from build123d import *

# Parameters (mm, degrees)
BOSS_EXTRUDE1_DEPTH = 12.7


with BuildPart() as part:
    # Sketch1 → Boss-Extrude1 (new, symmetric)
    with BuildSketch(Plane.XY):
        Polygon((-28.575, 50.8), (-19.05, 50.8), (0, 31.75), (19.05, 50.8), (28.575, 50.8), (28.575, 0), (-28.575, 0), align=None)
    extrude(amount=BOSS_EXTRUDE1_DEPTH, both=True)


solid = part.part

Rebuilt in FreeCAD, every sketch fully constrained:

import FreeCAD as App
import Part
import Sketcher
from FreeCAD import Vector
Q = App.Units.Quantity

doc = App.newDocument("Part")
body = doc.addObject("PartDesign::Body", "Body")

# Sketch on XY plane
sketch1 = body.newObject("Sketcher::SketchObject", "Sketch")
sketch1.AttachmentSupport = (doc.getObject("XY_Plane"), [""])
sketch1.MapMode = "FlatFace"
sketch1.addGeometry([
    Part.LineSegment(Vector(-19, 51, 0), Vector(-29, 51, 0)),  # 0
    Part.LineSegment(Vector(-29, 51, 0), Vector(-29, 0, 0)),  # 1
    Part.LineSegment(Vector(-29, 0, 0), Vector(29, 0, 0)),  # 2
    Part.LineSegment(Vector(29, 0, 0), Vector(29, 51, 0)),  # 3
    Part.LineSegment(Vector(29, 51, 0), Vector(19, 51, 0)),  # 4
    Part.LineSegment(Vector(19, 51, 0), Vector(0, 32, 0)),  # 5
    Part.LineSegment(Vector(0, 32, 0), Vector(-19, 51, 0)),  # 6
], False)
sketch1.addConstraint([
    Sketcher.Constraint("Coincident", 0, 2, 1, 1),
    Sketcher.Constraint("Coincident", 1, 2, 2, 1),
    Sketcher.Constraint("Coincident", 2, 2, 3, 1),
    Sketcher.Constraint("Coincident", 3, 2, 4, 1),
    Sketcher.Constraint("Coincident", 4, 2, 5, 1),
    Sketcher.Constraint("Coincident", 5, 2, 6, 1),
    Sketcher.Constraint("Coincident", 6, 2, 0, 1),
    Sketcher.Constraint("Horizontal", 0),
    Sketcher.Constraint("Vertical", 1),
    Sketcher.Constraint("Horizontal", 2),
    Sketcher.Constraint("Vertical", 3),
    Sketcher.Constraint("Horizontal", 4),
    Sketcher.Constraint("Symmetric", 1, 2, 2, 2, -1, 1),
    Sketcher.Constraint("Symmetric", 4, 2, 6, 2, -2),
    Sketcher.Constraint("PointOnObject", 5, 2, -2),
    Sketcher.Constraint("Perpendicular", 5, 6),
    Sketcher.Constraint("DistanceY", 1, 2, 1, 1, Q("2 in")),
    Sketcher.Constraint("DistanceX", 2, 1, 2, 2, Q("2.25 in")),
    Sketcher.Constraint("DistanceX", 6, 2, 4, 2, Q("1.5 in")),
])
pad1 = body.newObject("PartDesign::Pad", "Pad")
pad1.Profile = sketch1
pad1.Length = Q("1 in")
pad1.Midplane = True

doc.recompute()
